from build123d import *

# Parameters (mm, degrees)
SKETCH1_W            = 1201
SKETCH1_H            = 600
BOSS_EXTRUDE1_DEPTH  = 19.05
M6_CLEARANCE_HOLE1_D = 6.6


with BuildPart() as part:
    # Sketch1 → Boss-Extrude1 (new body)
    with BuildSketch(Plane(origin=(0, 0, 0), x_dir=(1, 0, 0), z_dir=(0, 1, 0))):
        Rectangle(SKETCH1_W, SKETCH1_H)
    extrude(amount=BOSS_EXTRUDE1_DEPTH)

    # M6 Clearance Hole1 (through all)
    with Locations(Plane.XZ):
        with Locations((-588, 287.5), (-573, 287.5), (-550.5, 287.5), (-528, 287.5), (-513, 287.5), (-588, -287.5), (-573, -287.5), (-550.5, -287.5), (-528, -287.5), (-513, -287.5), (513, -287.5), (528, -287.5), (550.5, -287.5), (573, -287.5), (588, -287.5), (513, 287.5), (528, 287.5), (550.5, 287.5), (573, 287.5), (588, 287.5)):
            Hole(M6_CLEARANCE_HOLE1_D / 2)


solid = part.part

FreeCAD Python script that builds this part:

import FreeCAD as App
import Part
import Sketcher
Q = App.Units.Quantity


def add_polygon(sketch, points):
    """Adds a closed chain of lines whose ends are joined by coincident constraints."""
    first, n = sketch.GeometryCount, len(points)
    for a, b in zip(points, points[1:] + points[:1]):
        sketch.addGeometry(Part.LineSegment(App.Vector(*a, 0), App.Vector(*b, 0)), False)
    for i in range(n):
        sketch.addConstraint(Sketcher.Constraint("Coincident", first + i, 2, first + (i + 1) % n, 1))

doc = App.newDocument("Part")
body = doc.addObject("PartDesign::Body", "Body")

# Sketch on XZ plane
sketch1 = doc.addObject("Sketcher::SketchObject", "Sketch")
body.addObject(sketch1)
sketch1.AttachmentSupport = (doc.XZ_Plane, [""])
sketch1.MapMode = "FlatFace"
add_polygon(sketch1, [(-600, -300), (-600, 300), (600, 300), (600, -300)])  # lines 0-3
sketch1.addConstraint(Sketcher.Constraint("Vertical", 0))
sketch1.addConstraint(Sketcher.Constraint("Horizontal", 1))
sketch1.addConstraint(Sketcher.Constraint("Vertical", 2))
sketch1.addConstraint(Sketcher.Constraint("Horizontal", 3))
sketch1.addConstraint(Sketcher.Constraint("Symmetric", 0, 2, 2, 2, -1, 1))
sketch1.addConstraint(Sketcher.Constraint("DistanceX", 1, 1, 1, 2, Q("1201 mm")))
sketch1.addConstraint(Sketcher.Constraint("DistanceY", 0, 1, 0, 2, Q("600 mm")))
pad1 = doc.addObject("PartDesign::Pad", "Pad")
body.addObject(pad1)
pad1.Profile = sketch1
pad1.Length = 19.05
pad1.Reversed = True

# Sketch on XZ plane
sketch2 = doc.addObject("Sketcher::SketchObject", "Sketch001")
body.addObject(sketch2)
sketch2.AttachmentSupport = (doc.XZ_Plane, [""])
sketch2.MapMode = "FlatFace"
sketch2.addGeometry(Part.Circle(App.Vector(-588, 287.5, 0), App.Vector(0, 0, 1), 3.3), False)
sketch2.addGeometry(Part.Circle(App.Vector(-573, 287.5, 0), App.Vector(0, 0, 1), 3.3), False)
sketch2.addGeometry(Part.Circle(App.Vector(-550.5, 287.5, 0), App.Vector(0, 0, 1), 3.3), False)
sketch2.addGeometry(Part.Circle(App.Vector(-528, 287.5, 0), App.Vector(0, 0, 1), 3.3), False)
sketch2.addGeometry(Part.Circle(App.Vector(-513, 287.5, 0), App.Vector(0, 0, 1), 3.3), False)
sketch2.addGeometry(Part.Circle(App.Vector(-588, -287.5, 0), App.Vector(0, 0, 1), 3.3), False)
sketch2.addGeometry(Part.Circle(App.Vector(-573, -287.5, 0), App.Vector(0, 0, 1), 3.3), False)
sketch2.addGeometry(Part.Circle(App.Vector(-550.5, -287.5, 0), App.Vector(0, 0, 1), 3.3), False)
sketch2.addGeometry(Part.Circle(App.Vector(-528, -287.5, 0), App.Vector(0, 0, 1), 3.3), False)
sketch2.addGeometry(Part.Circle(App.Vector(-513, -287.5, 0), App.Vector(0, 0, 1), 3.3), False)
sketch2.addGeometry(Part.Circle(App.Vector(513, -287.5, 0), App.Vector(0, 0, 1), 3.3), False)
sketch2.addGeometry(Part.Circle(App.Vector(528, -287.5, 0), App.Vector(0, 0, 1), 3.3), False)
sketch2.addGeometry(Part.Circle(App.Vector(550.5, -287.5, 0), App.Vector(0, 0, 1), 3.3), False)
sketch2.addGeometry(Part.Circle(App.Vector(573, -287.5, 0), App.Vector(0, 0, 1), 3.3), False)
sketch2.addGeometry(Part.Circle(App.Vector(588, -287.5, 0), App.Vector(0, 0, 1), 3.3), False)
sketch2.addGeometry(Part.Circle(App.Vector(513, 287.5, 0), App.Vector(0, 0, 1), 3.3), False)
sketch2.addGeometry(Part.Circle(App.Vector(528, 287.5, 0), App.Vector(0, 0, 1), 3.3), False)
sketch2.addGeometry(Part.Circle(App.Vector(550.5, 287.5, 0), App.Vector(0, 0, 1), 3.3), False)
sketch2.addGeometry(Part.Circle(App.Vector(573, 287.5, 0), App.Vector(0, 0, 1), 3.3), False)
sketch2.addGeometry(Part.Circle(App.Vector(588, 287.5, 0), App.Vector(0, 0, 1), 3.3), False)
sketch2.addConstraint(Sketcher.Constraint("Equal", 0, 1))
sketch2.addConstraint(Sketcher.Constraint("Equal", 1, 2))
sketch2.addConstraint(Sketcher.Constraint("Equal", 2, 3))
sketch2.addConstraint(Sketcher.Constraint("Equal", 3, 4))
sketch2.addConstraint(Sketcher.Constraint("Equal", 4, 5))
sketch2.addConstraint(Sketcher.Constraint("Equal", 5, 6))
sketch2.addConstraint(Sketcher.Constraint("Equal", 6, 7))
sketch2.addConstraint(Sketcher.Constraint("Equal", 7, 8))
sketch2.addConstraint(Sketcher.Constraint("Equal", 8, 9))
sketch2.addConstraint(Sketcher.Constraint("Equal", 9, 10))
sketch2.addConstraint(Sketcher.Constraint("Equal", 10, 11))
sketch2.addConstraint(Sketcher.Constraint("Equal", 11, 12))
sketch2.addConstraint(Sketcher.Constraint("Equal", 12, 13))
sketch2.addConstraint(Sketcher.Constraint("Equal", 13, 14))
sketch2.addConstraint(Sketcher.Constraint("Equal", 14, 15))
sketch2.addConstraint(Sketcher.Constraint("Equal", 15, 16))
sketch2.addConstraint(Sketcher.Constraint("Equal", 16, 17))
sketch2.addConstraint(Sketcher.Constraint("Equal", 17, 18))
sketch2.addConstraint(Sketcher.Constraint("Equal", 18, 19))
sketch2.addConstraint(Sketcher.Constraint("Symmetric", 4, 3, 10, 3, -1, 1))
sketch2.addConstraint(Sketcher.Constraint("Symmetric", 3, 3, 11, 3, -1, 1))
sketch2.addConstraint(Sketcher.Constraint("Symmetric", 2, 3, 12, 3, -1, 1))
sketch2.addConstraint(Sketcher.Constraint("Symmetric", 1, 3, 13, 3, -1, 1))
sketch2.addConstraint(Sketcher.Constraint("Symmetric", 0, 3, 14, 3, -1, 1))
sketch2.addConstraint(Sketcher.Constraint("Symmetric", 9, 3, 15, 3, -1, 1))
sketch2.addConstraint(Sketcher.Constraint("Symmetric", 8, 3, 16, 3, -1, 1))
sketch2.addConstraint(Sketcher.Constraint("Symmetric", 7, 3, 17, 3, -1, 1))
sketch2.addConstraint(Sketcher.Constraint("Symmetric", 6, 3, 18, 3, -1, 1))
sketch2.addConstraint(Sketcher.Constraint("Symmetric", 5, 3, 19, 3, -1, 1))
sketch2.addConstraint(Sketcher.Constraint("Symmetric", 9, 3, 10, 3, -2))
sketch2.addConstraint(Sketcher.Constraint("Symmetric", 8, 3, 11, 3, -2))
sketch2.addConstraint(Sketcher.Constraint("Symmetric", 7, 3, 12, 3, -2))
sketch2.addConstraint(Sketcher.Constraint("Symmetric", 6, 3, 13, 3, -2))
sketch2.addConstraint(Sketcher.Constraint("Symmetric", 5, 3, 14, 3, -2))
sketch2.addConstraint(Sketcher.Constraint("Horizontal", 0, 3, 1, 3))
sketch2.addConstraint(Sketcher.Constraint("Horizontal", 1, 3, 2, 3))
sketch2.addConstraint(Sketcher.Constraint("Horizontal", 2, 3, 3, 3))
sketch2.addConstraint(Sketcher.Constraint("Horizontal", 3, 3, 4, 3))
sketch2.addConstraint(Sketcher.Constraint("Diameter", 0, Q("6.6 mm")))
sketch2.addConstraint(Sketcher.Constraint("DistanceX", 0, 3, -1, 1, Q("588 mm")))
sketch2.addConstraint(Sketcher.Constraint("DistanceX", 1, 3, -1, 1, Q("573 mm")))
sketch2.addConstraint(Sketcher.Constraint("DistanceX", 3, 3, -1, 1, Q("528 mm")))
sketch2.addConstraint(Sketcher.Constraint("DistanceX", 4, 3, -1, 1, Q("513 mm")))
sketch2.addConstraint(Sketcher.Constraint("DistanceY", 5, 3, 0, 3, Q("575 mm")))
sketch2.addConstraint(Sketcher.Constraint("DistanceX", 7, 3, 12, 3, Q("1101 mm")))
doc.recompute()
hole = doc.addObject("PartDesign::Hole", "Hole")
body.addObject(hole)
hole.Profile = sketch2
hole.ThreadType = "None"
hole.Diameter = 6.6
hole.DepthType = "ThroughAll"

doc.recompute()
